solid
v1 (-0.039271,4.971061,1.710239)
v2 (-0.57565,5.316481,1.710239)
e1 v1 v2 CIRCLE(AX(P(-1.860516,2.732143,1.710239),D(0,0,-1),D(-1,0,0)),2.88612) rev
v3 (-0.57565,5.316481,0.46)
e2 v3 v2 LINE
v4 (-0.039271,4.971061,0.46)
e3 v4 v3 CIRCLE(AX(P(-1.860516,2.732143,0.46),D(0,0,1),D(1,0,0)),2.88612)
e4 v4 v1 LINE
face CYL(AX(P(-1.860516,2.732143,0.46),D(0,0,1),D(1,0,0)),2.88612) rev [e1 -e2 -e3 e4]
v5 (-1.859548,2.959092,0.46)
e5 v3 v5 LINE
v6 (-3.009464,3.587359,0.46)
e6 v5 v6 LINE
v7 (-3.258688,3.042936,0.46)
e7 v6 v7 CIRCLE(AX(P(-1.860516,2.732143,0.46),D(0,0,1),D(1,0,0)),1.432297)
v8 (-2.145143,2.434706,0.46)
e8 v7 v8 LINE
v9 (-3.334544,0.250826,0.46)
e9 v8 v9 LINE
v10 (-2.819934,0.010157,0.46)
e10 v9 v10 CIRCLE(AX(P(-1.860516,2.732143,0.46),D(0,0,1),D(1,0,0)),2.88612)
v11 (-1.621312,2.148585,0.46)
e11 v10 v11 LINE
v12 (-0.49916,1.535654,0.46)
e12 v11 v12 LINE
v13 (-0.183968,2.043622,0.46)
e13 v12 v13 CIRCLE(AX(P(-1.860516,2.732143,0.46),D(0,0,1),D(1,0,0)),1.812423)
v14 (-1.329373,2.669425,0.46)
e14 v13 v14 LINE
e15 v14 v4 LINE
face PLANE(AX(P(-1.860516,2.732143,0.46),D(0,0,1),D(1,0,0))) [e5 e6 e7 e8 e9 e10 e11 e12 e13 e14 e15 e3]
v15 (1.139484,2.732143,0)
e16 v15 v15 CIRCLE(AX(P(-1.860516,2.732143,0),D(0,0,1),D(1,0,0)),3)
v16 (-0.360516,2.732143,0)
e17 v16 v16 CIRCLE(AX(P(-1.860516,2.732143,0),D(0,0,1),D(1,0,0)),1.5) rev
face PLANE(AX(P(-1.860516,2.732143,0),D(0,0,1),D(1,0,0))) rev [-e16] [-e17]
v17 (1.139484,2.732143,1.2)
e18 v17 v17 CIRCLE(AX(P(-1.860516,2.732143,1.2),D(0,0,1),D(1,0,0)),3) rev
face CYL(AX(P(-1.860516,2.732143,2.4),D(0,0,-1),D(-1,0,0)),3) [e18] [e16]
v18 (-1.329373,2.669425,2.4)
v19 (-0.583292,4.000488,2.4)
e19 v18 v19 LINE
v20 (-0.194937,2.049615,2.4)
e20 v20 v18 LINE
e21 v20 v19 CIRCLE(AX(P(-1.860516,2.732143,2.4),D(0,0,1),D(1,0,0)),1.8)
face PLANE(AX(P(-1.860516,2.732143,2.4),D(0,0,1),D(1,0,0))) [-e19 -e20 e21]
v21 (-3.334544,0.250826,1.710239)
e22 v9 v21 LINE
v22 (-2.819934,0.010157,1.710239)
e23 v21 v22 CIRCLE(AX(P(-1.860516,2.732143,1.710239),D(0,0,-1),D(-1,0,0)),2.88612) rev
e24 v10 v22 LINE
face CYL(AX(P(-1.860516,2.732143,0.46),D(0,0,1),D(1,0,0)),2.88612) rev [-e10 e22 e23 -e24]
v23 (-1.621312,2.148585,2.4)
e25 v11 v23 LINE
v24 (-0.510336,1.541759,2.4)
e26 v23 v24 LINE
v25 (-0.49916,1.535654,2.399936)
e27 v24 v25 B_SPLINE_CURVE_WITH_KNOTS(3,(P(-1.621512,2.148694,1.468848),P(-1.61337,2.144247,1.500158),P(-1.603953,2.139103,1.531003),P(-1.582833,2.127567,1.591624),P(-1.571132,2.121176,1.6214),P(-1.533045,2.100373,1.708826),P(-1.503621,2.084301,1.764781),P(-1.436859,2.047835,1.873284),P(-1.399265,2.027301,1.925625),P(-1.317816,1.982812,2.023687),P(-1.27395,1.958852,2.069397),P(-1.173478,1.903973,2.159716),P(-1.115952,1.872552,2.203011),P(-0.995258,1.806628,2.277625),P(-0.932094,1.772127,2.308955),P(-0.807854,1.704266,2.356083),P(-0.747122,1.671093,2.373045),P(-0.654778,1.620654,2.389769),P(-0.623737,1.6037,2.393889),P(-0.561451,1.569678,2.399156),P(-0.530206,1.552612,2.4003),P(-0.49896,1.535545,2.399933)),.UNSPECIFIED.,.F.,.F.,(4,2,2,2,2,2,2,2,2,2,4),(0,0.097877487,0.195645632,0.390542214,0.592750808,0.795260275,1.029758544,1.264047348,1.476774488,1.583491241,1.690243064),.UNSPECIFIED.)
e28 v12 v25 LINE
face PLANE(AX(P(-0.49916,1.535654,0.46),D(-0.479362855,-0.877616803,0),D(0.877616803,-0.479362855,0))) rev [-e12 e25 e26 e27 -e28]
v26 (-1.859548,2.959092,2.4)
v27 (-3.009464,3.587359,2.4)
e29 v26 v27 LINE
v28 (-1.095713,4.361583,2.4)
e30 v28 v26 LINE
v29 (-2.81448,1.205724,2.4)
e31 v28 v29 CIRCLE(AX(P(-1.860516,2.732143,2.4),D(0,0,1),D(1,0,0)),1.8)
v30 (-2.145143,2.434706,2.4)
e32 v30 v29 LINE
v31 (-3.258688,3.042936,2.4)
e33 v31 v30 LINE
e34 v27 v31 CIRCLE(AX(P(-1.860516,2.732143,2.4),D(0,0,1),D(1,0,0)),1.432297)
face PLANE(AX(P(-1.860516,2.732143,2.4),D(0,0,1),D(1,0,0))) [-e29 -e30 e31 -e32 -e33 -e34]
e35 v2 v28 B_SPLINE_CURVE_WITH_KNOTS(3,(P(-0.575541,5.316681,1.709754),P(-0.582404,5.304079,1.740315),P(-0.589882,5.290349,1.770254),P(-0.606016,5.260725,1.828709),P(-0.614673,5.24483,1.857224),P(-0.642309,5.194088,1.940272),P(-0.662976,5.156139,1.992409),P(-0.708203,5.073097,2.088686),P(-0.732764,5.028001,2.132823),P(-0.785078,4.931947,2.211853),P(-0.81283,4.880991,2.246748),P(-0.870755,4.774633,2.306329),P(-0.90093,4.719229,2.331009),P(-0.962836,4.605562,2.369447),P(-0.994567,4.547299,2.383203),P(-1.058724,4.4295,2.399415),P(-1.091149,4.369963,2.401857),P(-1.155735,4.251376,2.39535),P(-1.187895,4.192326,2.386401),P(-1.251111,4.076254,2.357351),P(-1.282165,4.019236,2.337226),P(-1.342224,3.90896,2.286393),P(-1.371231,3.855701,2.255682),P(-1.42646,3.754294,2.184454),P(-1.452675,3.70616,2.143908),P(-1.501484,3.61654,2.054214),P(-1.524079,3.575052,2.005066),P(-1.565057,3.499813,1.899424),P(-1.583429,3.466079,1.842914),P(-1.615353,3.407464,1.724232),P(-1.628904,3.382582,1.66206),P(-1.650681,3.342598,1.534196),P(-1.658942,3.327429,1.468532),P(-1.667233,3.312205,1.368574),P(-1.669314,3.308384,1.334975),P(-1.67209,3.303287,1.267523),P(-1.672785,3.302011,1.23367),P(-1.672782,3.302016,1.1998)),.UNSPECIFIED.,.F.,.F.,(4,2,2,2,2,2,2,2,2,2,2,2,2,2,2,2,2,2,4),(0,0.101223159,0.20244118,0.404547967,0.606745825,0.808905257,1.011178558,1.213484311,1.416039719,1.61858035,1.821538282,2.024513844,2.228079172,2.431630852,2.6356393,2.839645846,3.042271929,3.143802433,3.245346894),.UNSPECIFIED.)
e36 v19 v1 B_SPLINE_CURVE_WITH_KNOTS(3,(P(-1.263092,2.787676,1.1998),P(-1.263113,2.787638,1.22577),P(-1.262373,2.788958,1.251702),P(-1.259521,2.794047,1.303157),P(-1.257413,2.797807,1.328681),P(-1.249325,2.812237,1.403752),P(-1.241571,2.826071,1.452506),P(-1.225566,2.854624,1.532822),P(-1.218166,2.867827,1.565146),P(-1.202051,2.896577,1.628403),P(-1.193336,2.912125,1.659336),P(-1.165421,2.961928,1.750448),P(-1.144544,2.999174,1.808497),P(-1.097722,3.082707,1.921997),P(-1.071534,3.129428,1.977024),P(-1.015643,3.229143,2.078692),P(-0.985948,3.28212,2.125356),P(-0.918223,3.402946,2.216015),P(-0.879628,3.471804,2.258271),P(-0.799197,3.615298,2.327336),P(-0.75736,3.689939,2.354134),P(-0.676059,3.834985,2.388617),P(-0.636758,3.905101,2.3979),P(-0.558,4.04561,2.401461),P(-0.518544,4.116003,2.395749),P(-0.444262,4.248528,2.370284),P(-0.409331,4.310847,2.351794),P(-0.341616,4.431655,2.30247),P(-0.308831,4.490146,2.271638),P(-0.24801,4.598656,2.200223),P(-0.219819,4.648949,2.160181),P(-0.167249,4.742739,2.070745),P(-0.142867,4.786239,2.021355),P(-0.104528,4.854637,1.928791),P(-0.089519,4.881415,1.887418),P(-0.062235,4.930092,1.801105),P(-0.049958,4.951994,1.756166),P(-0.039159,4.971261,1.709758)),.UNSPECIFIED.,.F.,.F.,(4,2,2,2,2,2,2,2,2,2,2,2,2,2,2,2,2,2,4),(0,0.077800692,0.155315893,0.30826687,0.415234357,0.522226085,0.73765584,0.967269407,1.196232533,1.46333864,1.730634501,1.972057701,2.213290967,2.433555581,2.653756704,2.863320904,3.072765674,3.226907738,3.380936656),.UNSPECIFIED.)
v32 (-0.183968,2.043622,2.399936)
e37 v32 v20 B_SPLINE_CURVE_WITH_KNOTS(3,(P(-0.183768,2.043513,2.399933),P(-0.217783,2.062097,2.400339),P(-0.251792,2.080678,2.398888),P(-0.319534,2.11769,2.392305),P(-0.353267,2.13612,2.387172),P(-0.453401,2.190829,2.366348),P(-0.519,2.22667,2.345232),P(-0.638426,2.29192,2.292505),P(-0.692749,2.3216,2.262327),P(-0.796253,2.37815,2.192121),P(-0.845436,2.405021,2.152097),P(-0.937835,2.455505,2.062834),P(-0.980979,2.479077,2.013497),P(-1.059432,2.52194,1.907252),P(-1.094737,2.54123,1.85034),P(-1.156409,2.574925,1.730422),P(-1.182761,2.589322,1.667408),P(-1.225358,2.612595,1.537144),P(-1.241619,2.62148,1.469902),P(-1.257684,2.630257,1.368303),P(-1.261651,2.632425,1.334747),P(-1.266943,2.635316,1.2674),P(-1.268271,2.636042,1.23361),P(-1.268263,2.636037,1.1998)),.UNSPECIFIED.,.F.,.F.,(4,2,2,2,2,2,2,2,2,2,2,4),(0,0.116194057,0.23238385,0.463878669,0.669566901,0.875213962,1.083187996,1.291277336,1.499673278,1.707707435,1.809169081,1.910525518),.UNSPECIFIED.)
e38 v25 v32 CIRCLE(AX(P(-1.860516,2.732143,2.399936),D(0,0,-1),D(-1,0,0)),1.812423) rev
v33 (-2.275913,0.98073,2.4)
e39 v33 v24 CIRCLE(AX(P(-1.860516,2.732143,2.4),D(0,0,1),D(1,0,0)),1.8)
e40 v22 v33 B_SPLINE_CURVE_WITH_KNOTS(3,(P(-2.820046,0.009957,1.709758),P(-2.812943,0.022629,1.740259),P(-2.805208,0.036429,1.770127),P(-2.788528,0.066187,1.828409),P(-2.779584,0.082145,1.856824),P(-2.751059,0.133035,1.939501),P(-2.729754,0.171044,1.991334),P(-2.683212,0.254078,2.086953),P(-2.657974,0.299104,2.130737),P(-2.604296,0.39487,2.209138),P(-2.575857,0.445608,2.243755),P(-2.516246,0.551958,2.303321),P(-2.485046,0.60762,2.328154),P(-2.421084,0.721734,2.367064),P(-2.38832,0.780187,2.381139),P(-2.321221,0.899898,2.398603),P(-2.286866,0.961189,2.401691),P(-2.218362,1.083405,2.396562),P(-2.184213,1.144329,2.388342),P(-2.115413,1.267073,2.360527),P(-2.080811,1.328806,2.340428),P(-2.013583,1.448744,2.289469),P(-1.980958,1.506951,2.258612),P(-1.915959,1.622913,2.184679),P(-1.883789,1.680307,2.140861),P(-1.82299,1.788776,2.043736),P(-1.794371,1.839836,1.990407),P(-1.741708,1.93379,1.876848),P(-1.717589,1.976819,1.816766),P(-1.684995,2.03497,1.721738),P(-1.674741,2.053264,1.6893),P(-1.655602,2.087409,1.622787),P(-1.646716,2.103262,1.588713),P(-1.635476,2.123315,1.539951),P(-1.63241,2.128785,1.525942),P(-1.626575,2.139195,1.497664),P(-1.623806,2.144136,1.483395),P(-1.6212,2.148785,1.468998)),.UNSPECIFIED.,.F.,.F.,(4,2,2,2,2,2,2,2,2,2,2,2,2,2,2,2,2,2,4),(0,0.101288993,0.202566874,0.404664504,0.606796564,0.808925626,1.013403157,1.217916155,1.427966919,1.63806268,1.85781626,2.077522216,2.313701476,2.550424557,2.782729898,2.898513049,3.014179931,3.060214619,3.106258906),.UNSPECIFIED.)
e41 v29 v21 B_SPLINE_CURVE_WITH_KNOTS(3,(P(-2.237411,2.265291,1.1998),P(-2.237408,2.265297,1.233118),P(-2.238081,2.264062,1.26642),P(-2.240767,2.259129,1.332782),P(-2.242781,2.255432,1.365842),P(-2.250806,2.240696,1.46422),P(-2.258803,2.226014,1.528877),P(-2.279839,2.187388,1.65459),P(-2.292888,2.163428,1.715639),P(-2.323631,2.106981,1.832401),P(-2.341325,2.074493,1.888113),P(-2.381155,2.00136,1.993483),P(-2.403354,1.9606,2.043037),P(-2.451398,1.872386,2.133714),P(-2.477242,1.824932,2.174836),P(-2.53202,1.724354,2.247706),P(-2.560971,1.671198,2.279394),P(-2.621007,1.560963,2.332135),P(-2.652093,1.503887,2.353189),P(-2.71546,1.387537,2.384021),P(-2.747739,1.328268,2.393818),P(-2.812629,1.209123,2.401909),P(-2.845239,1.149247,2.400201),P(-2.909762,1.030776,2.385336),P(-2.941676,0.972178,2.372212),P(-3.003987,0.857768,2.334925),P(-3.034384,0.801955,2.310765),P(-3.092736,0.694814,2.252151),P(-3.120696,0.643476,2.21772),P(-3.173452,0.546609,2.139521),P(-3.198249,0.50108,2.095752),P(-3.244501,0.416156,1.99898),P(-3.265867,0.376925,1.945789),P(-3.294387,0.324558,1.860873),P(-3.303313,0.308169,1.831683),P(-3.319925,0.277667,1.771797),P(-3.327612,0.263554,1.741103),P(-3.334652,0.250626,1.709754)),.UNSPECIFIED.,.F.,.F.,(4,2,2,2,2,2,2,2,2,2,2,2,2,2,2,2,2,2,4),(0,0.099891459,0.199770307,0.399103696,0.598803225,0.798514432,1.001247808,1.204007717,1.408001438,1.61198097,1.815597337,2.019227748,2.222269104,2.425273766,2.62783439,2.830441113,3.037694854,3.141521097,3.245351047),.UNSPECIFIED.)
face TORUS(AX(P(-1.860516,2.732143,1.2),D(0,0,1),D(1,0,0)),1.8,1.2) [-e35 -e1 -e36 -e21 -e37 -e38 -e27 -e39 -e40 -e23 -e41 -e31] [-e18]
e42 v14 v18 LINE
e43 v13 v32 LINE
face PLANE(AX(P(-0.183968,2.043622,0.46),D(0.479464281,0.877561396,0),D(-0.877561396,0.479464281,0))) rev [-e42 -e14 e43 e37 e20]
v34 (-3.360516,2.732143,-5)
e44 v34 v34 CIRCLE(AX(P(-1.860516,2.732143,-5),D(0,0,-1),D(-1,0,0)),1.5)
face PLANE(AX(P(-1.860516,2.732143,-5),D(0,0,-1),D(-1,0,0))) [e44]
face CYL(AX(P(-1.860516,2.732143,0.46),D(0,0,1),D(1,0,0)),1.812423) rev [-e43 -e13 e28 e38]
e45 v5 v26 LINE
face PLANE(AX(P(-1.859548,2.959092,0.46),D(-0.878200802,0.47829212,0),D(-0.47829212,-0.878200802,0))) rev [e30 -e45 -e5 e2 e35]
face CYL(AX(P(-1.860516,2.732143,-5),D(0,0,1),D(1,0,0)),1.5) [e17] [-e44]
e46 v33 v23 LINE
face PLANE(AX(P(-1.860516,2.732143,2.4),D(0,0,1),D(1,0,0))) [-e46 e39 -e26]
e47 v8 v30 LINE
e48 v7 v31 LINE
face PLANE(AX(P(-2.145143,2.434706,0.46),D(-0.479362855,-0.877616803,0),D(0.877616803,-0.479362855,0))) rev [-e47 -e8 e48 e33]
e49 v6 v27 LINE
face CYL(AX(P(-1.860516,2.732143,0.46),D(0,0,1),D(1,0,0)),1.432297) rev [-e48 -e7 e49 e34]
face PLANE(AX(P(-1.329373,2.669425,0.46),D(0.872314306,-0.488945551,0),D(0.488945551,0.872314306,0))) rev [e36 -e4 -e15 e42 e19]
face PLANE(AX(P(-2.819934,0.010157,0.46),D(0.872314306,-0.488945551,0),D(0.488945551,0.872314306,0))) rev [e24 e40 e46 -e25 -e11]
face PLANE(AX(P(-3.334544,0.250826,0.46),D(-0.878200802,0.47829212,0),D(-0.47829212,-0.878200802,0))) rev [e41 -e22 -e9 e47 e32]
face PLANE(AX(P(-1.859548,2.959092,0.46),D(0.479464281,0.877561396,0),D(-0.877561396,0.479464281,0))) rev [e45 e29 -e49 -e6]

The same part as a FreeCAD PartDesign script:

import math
import FreeCAD as App
import Part
import Sketcher

V = App.Vector


def edges_at(feature, points):
    """Names of the edges that pass closest to the given points."""
    edges = feature.Shape.Edges
    near = lambda p: min(range(len(edges)), key=lambda i: edges[i].distToShape(Part.Vertex(*p))[0])
    return sorted({f"Edge{near(p) + 1}" for p in points})

doc = App.newDocument("Part")
params = doc.addObject("Spreadsheet::Sheet", "Params")
for row, (alias, value) in enumerate([
    ("sketch1_diameter", "6 mm"),
    ("pad1_length", "2.4 mm"),
    ("sketch2_diameter", "3 mm"),
    ("pad2_length", "5 mm"),
    ("fillet_radius", "1.2 mm"),
    ("pocket1_length", "1.94 mm"),
], start=1):
    params.set(f"A{row}", alias)
    params.set(f"B{row}", "=" + value)
    params.setAlias(f"B{row}", alias)

body = doc.addObject("PartDesign::Body", "Body")

# Sketch on XY plane
sketch1 = body.newObject("Sketcher::SketchObject", "Sketch")
sketch1.AttachmentSupport = (doc.getObject("XY_Plane"), [""])
sketch1.MapMode = "FlatFace"
sketch1.addGeometry(Part.Circle(V(-1.9, 2.7, 0), V(0, 0, 1), 3), False)
sketch1.addConstraint(Sketcher.Constraint("Diameter", 0, 6.0))
sketch1.addConstraint(Sketcher.Constraint("DistanceX", 0, 3, -1, 1, 1.860516))
sketch1.addConstraint(Sketcher.Constraint("DistanceY", -1, 1, 0, 3, 2.732143))
sketch1.setExpression("Constraints[0]", "Params.sketch1_diameter")
pad1 = body.newObject("PartDesign::Pad", "Pad")
pad1.Profile = sketch1
pad1.setExpression("Length", "Params.pad1_length")

# Sketch on XY plane
sketch2 = body.newObject("Sketcher::SketchObject", "Sketch001")
sketch2.AttachmentSupport = (doc.getObject("XY_Plane"), [""])
sketch2.MapMode = "FlatFace"
sketch2.addGeometry(Part.Circle(V(-1.9, 2.7, 0), V(0, 0, 1), 1.5), False)
sketch2.addConstraint(Sketcher.Constraint("Diameter", 0, 3.0))
sketch2.addConstraint(Sketcher.Constraint("DistanceX", 0, 3, -1, 1, 1.860516))
sketch2.addConstraint(Sketcher.Constraint("DistanceY", -1, 1, 0, 3, 2.732143))
sketch2.setExpression("Constraints[0]", "Params.sketch2_diameter")
pad2 = body.newObject("PartDesign::Pad", "Pad001")
pad2.Profile = sketch2
pad2.setExpression("Length", "Params.pad2_length")
pad2.Reversed = True
doc.recompute()

fillet = body.newObject("PartDesign::Fillet", "Fillet")
fillet.Base = (pad2, edges_at(pad2, [(-4.861, 2.732, 2.4)]))
fillet.setExpression("Radius", "Params.fillet_radius")

# Sketch on XY plane
sketch3 = body.newObject("Sketcher::SketchObject", "Sketch002")
sketch3.AttachmentSupport = (doc.getObject("XY_Plane"), [""])
sketch3.MapMode = "FlatFace"
sketch3.AttachmentOffset = App.Placement(V(0, 0, 2.4), App.Rotation())
sketch3.addGeometry(Part.LineSegment(V(-0.57565, 5.316481, 0), V(-1.859548, 2.959092, 0)), False)
sketch3.addGeometry(Part.LineSegment(V(-1.859548, 2.959092, 0), V(-3.009464, 3.587359, 0)), False)
sketch3.addGeometry(Part.ArcOfCircle(Part.Circle(V(-1.860516, 2.732143, 0), V(0, 0, 1), 1.432297), math.radians(143.337927), math.radians(167.467762)), False)
sketch3.addGeometry(Part.LineSegment(V(-3.258688, 3.042936, 0), V(-2.145143, 2.434706, 0)), False)
sketch3.addGeometry(Part.LineSegment(V(-2.145143, 2.434706, 0), V(-3.334544, 0.250826, 0)), False)
sketch3.addGeometry(Part.ArcOfCircle(Part.Circle(V(-1.860516, 2.732143, 0), V(0, 0, 1), 2.88612), math.radians(-120.712451), math.radians(-109.416009)), False)
sketch3.addGeometry(Part.LineSegment(V(-2.819934, 0.010157, 0), V(-1.621312, 2.148585, 0)), False)
sketch3.addGeometry(Part.LineSegment(V(-1.621312, 2.148585, 0), V(-0.49916, 1.535654, 0)), False)
sketch3.addGeometry(Part.ArcOfCircle(Part.Circle(V(-1.860516, 2.732143, 0), V(0, 0, 1), 1.812423), math.radians(-41.312055), math.radians(-22.326858)), False)
sketch3.addGeometry(Part.LineSegment(V(-0.183968, 2.043622, 0), V(-1.329373, 2.669425, 0)), False)
sketch3.addGeometry(Part.LineSegment(V(-1.329373, 2.669425, 0), V(-0.039271, 4.971061, 0)), False)
sketch3.addGeometry(Part.ArcOfCircle(Part.Circle(V(-1.860516, 2.732143, 0), V(0, 0, 1), 2.88612), math.radians(50.87341), math.radians(63.564618)), False)
sketch3.addConstraint(Sketcher.Constraint("Coincident", 0, 2, 1, 1))
sketch3.addConstraint(Sketcher.Constraint("Coincident", 1, 2, 2, 1))
sketch3.addConstraint(Sketcher.Constraint("Coincident", 2, 2, 3, 1))
sketch3.addConstraint(Sketcher.Constraint("Coincident", 3, 2, 4, 1))
sketch3.addConstraint(Sketcher.Constraint("Coincident", 4, 2, 5, 1))
sketch3.addConstraint(Sketcher.Constraint("Coincident", 5, 2, 6, 1))
sketch3.addConstraint(Sketcher.Constraint("Coincident", 6, 2, 7, 1))
sketch3.addConstraint(Sketcher.Constraint("Coincident", 7, 2, 8, 1))
sketch3.addConstraint(Sketcher.Constraint("Coincident", 8, 2, 9, 1))
sketch3.addConstraint(Sketcher.Constraint("Coincident", 9, 2, 10, 1))
sketch3.addConstraint(Sketcher.Constraint("Coincident", 10, 2, 11, 1))
sketch3.addConstraint(Sketcher.Constraint("Coincident", 11, 2, 0, 1))
sketch3.addConstraint(Sketcher.Constraint("Coincident", 5, 3, 2, 3))
sketch3.addConstraint(Sketcher.Constraint("Coincident", 8, 3, 2, 3))
sketch3.addConstraint(Sketcher.Constraint("Coincident", 11, 3, 2, 3))
sketch3.addConstraint(Sketcher.Constraint("Radius", 5, 2.88612))
sketch3.addConstraint(Sketcher.Constraint("Radius", 11, 2.88612))
sketch3.addConstraint(Sketcher.Constraint("Radius", 2, 1.432297))
sketch3.addConstraint(Sketcher.Constraint("Radius", 8, 1.812423))
sketch3.addConstraint(Sketcher.Constraint("DistanceX", 4, 2, 3, 2, 1.189401))
sketch3.addConstraint(Sketcher.Constraint("DistanceX", 9, 2, 10, 2, 1.290102))
sketch3.addConstraint(Sketcher.Constraint("DistanceX", 0, 2, 11, 2, 1.283899))
sketch3.addConstraint(Sketcher.Constraint("Distance", 0, 2.68434))
sketch3.addConstraint(Sketcher.Constraint("Distance", 3, 1.268828))
sketch3.addConstraint(Sketcher.Constraint("Distance", 6, 2.451442))
sketch3.addConstraint(Sketcher.Constraint("Distance", 10, 2.638539))
sketch3.addConstraint(Sketcher.Constraint("DistanceX", 0, 2, -1, 1, 1.859548))
sketch3.addConstraint(Sketcher.Constraint("DistanceY", -1, 1, 0, 2, 2.959092))
sketch3.addConstraint(Sketcher.Constraint("DistanceY", -1, 1, 1, 2, 3.587359))
sketch3.addConstraint(Sketcher.Constraint("DistanceX", 7, 2, -1, 1, 0.49916))
sketch3.addConstraint(Sketcher.Constraint("DistanceY", -1, 1, 8, 2, 2.043622))
sketch3.addConstraint(Sketcher.Constraint("DistanceX", 10, 2, -1, 1, 0.039271))
sketch3.addConstraint(Sketcher.Constraint("DistanceY", -1, 1, 10, 2, 4.971061))
sketch3.addConstraint(Sketcher.Constraint("DistanceX", 2, 2, 0, 2, 1.39914))
sketch3.addConstraint(Sketcher.Constraint("DistanceY", 4, 2, 3, 2, 2.18388))
sketch3.addConstraint(Sketcher.Constraint("DistanceX", 4, 2, 5, 2, 0.51461))
sketch3.addConstraint(Sketcher.Constraint("DistanceX", 3, 2, 6, 2, 0.523831))
pocket1 = body.newObject("PartDesign::Pocket", "Pocket")
pocket1.Profile = sketch3
pocket1.setExpression("Length", "Params.pocket1_length")

doc.recompute()
